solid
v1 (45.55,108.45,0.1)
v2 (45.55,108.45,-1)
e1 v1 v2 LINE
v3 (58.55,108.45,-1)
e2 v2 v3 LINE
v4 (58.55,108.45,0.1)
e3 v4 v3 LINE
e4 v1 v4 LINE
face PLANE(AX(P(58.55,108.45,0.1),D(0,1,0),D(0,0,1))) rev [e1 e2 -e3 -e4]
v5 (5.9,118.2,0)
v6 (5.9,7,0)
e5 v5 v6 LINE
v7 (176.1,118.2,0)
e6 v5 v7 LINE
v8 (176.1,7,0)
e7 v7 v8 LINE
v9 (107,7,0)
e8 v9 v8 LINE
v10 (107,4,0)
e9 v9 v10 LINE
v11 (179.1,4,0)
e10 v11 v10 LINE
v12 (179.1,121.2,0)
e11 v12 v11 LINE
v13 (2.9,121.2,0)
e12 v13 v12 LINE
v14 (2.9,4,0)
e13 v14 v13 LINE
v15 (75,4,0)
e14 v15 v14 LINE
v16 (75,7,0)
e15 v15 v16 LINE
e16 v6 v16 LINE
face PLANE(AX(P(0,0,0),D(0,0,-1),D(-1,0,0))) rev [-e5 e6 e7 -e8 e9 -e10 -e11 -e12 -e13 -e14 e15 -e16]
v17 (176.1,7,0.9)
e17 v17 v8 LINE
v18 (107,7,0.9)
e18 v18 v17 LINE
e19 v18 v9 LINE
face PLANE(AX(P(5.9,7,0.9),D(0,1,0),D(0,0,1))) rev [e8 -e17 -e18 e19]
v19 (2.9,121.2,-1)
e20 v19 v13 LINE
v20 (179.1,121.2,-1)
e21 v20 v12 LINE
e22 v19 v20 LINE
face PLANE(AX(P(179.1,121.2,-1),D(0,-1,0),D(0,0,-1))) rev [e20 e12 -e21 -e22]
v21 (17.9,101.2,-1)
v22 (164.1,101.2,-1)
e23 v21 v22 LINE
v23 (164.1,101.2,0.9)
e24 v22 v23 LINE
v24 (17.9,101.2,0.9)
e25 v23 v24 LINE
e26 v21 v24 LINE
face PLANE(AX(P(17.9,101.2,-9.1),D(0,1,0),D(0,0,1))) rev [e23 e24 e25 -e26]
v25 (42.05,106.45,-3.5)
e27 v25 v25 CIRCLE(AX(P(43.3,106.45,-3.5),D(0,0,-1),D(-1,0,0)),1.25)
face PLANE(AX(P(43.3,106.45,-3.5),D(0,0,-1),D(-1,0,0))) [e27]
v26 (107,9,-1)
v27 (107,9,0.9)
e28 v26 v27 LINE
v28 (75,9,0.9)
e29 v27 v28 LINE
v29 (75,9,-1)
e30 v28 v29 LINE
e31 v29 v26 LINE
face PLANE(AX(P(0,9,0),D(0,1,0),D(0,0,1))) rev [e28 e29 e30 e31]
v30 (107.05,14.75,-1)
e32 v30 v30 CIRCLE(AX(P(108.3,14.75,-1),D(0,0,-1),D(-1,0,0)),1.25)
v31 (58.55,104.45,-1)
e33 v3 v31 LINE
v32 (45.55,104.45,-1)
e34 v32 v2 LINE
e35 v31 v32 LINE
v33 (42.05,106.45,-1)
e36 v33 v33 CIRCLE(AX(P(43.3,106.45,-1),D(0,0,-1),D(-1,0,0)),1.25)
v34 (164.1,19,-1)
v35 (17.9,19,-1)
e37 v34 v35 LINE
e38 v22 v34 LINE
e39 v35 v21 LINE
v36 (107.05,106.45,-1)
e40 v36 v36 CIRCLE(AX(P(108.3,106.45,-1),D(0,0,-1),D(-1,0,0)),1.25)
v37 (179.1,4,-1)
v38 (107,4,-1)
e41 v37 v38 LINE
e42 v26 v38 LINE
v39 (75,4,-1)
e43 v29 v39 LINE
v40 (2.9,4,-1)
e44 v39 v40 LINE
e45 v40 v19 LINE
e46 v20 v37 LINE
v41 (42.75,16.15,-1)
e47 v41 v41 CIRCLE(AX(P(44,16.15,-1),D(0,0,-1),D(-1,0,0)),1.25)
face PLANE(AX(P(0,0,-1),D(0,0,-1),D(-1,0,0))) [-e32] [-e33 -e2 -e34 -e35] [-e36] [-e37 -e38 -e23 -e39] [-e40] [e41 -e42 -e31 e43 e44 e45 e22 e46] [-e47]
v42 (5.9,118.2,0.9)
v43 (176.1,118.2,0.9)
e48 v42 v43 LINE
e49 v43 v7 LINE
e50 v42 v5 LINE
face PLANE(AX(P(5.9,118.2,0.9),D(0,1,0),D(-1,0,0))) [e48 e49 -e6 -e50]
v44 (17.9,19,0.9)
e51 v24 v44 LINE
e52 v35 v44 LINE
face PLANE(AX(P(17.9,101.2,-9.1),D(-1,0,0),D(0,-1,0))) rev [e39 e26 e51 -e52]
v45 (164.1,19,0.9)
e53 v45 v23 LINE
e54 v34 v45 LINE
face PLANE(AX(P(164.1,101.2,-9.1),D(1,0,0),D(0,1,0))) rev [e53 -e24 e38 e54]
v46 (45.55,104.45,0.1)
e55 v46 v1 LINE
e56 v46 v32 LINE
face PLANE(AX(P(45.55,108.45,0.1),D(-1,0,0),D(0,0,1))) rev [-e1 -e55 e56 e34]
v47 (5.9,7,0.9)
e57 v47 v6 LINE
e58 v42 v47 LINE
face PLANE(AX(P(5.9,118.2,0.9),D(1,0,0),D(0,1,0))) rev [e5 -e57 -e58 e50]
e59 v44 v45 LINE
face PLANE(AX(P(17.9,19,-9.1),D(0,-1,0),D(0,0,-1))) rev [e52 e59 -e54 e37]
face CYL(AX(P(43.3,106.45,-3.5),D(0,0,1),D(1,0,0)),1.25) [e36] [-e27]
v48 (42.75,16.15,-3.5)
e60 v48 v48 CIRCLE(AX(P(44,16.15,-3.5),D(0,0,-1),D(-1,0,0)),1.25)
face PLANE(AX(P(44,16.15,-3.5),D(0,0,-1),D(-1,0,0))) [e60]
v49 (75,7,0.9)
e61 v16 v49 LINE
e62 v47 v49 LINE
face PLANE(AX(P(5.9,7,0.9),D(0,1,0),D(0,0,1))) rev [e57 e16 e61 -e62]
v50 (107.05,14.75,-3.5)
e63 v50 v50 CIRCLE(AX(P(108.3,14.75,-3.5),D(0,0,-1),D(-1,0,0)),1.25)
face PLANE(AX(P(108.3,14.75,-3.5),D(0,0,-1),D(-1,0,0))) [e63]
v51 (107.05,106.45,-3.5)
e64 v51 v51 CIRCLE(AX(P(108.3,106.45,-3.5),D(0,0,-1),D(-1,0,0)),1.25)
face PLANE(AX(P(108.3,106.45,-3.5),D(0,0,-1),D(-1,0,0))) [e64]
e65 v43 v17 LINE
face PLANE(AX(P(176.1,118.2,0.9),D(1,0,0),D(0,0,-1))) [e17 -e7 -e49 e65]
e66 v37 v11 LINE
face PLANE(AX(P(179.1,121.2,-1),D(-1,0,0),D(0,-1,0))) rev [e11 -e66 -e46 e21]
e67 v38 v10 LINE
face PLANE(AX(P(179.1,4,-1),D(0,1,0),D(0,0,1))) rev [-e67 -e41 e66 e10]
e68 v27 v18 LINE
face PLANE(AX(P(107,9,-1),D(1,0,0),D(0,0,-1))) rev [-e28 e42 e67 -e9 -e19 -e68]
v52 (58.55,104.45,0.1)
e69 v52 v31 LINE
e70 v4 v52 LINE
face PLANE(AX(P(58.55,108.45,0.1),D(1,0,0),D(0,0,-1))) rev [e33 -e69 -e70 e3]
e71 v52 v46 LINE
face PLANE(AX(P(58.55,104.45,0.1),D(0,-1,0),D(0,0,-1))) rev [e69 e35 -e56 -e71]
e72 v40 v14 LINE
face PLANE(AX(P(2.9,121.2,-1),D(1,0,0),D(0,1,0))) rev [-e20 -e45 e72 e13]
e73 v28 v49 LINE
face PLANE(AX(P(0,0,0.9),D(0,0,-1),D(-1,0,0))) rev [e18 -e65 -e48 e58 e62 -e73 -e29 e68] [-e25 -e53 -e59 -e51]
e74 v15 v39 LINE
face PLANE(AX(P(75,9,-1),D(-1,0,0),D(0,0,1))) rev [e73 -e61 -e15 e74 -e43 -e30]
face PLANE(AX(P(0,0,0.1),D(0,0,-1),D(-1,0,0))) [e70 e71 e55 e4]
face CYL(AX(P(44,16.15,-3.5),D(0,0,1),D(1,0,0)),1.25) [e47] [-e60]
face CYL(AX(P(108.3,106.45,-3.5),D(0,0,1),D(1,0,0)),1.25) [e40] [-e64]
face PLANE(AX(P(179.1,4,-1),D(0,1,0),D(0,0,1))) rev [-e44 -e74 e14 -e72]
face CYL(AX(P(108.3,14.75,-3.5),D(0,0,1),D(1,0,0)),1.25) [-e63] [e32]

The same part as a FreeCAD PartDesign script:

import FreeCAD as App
import Part
import Sketcher

doc = App.newDocument("Part")
body = doc.addObject("PartDesign::Body", "Body")

sketch1 = doc.addObject("Sketcher::SketchObject", "Sketch")
body.addObject(sketch1)
sketch1.AttachmentSupport = (doc.XY_Plane, [""])
sketch1.MapMode = "FlatFace"
sketch1.addGeometry([
    Part.LineSegment(App.Vector(6, 118, 0), App.Vector(6, 7, 0)),
    Part.LineSegment(App.Vector(6, 7, 0), App.Vector(176, 7, 0)),
    Part.LineSegment(App.Vector(176, 7, 0), App.Vector(176, 118, 0)),
    Part.LineSegment(App.Vector(176, 118, 0), App.Vector(6, 118, 0)),
], False)
sketch1.addConstraint([
    Sketcher.Constraint("Coincident", 0, 2, 1, 1),
    Sketcher.Constraint("Coincident", 1, 2, 2, 1),
    Sketcher.Constraint("Coincident", 2, 2, 3, 1),
    Sketcher.Constraint("Coincident", 3, 2, 0, 1),
    Sketcher.Constraint("Vertical", 0),
    Sketcher.Constraint("Horizontal", 1),
    Sketcher.Constraint("Vertical", 2),
    Sketcher.Constraint("Horizontal", 3),
    Sketcher.Constraint("DistanceX", 1, 1, 1, 2, 170.2),
    Sketcher.Constraint("DistanceY", 0, 2, 0, 1, 111.2),
    Sketcher.Constraint("DistanceY", -1, 1, 0, 2, 7.0),
    Sketcher.Constraint("DistanceX", -1, 1, 0, 2, 5.9),
])
pad1 = doc.addObject("PartDesign::Pad", "Pad")
body.addObject(pad1)
pad1.Profile = sketch1
pad1.Length = 0.9

sketch2 = doc.addObject("Sketcher::SketchObject", "Sketch001")
body.addObject(sketch2)
sketch2.AttachmentSupport = (doc.XY_Plane, [""])
sketch2.MapMode = "FlatFace"
sketch2.addGeometry([
    Part.LineSegment(App.Vector(179, 121, 0), App.Vector(179, 4, 0)),
    Part.LineSegment(App.Vector(179, 4, 0), App.Vector(3, 4, 0)),
    Part.LineSegment(App.Vector(3, 4, 0), App.Vector(3, 121, 0)),
    Part.LineSegment(App.Vector(3, 121, 0), App.Vector(179, 121, 0)),
], False)
sketch2.addConstraint([
    Sketcher.Constraint("Coincident", 0, 2, 1, 1),
    Sketcher.Constraint("Coincident", 1, 2, 2, 1),
    Sketcher.Constraint("Coincident", 2, 2, 3, 1),
    Sketcher.Constraint("Coincident", 3, 2, 0, 1),
    Sketcher.Constraint("Vertical", 0),
    Sketcher.Constraint("Horizontal", 1),
    Sketcher.Constraint("Vertical", 2),
    Sketcher.Constraint("Horizontal", 3),
    Sketcher.Constraint("DistanceX", 1, 2, 1, 1, 176.2),
    Sketcher.Constraint("DistanceY", 0, 2, 0, 1, 117.2),
    Sketcher.Constraint("DistanceY", -1, 1, 0, 2, 4.0),
    Sketcher.Constraint("DistanceX", -1, 1, 0, 2, 179.1),
])
pad2 = doc.addObject("PartDesign::Pad", "Pad001")
body.addObject(pad2)
pad2.Profile = sketch2
pad2.Length = 1
pad2.Reversed = True

sketch3 = doc.addObject("Sketcher::SketchObject", "Sketch002")
body.addObject(sketch3)
sketch3.AttachmentSupport = (doc.XZ_Plane, [""])
sketch3.MapMode = "FlatFace"
sketch3.AttachmentOffset = App.Placement(App.Vector(0, 0, -4), App.Rotation())
sketch3.addGeometry([
    Part.LineSegment(App.Vector(75, 0.9, 0), App.Vector(75, -1, 0)),
    Part.LineSegment(App.Vector(75, -1, 0), App.Vector(107, -1, 0)),
    Part.LineSegment(App.Vector(107, -1, 0), App.Vector(107, 0.9, 0)),
    Part.LineSegment(App.Vector(107, 0.9, 0), App.Vector(75, 0.9, 0)),
], False)
sketch3.addConstraint([
    Sketcher.Constraint("Coincident", 0, 2, 1, 1),
    Sketcher.Constraint("Coincident", 1, 2, 2, 1),
    Sketcher.Constraint("Coincident", 2, 2, 3, 1),
    Sketcher.Constraint("Coincident", 3, 2, 0, 1),
    Sketcher.Constraint("Vertical", 0),
    Sketcher.Constraint("Horizontal", 1),
    Sketcher.Constraint("Vertical", 2),
    Sketcher.Constraint("Horizontal", 3),
    Sketcher.Constraint("DistanceX", 1, 1, 1, 2, 32.0),
    Sketcher.Constraint("DistanceY", 0, 2, 0, 1, 1.9),
    Sketcher.Constraint("DistanceX", -1, 1, 0, 2, 75.0),
    Sketcher.Constraint("DistanceY", 0, 2, -1, 1, 1.0),
])
pocket1 = doc.addObject("PartDesign::Pocket", "Pocket")
body.addObject(pocket1)
pocket1.Profile = sketch3
pocket1.Length = 5

sketch4 = doc.addObject("Sketcher::SketchObject", "Sketch003")
body.addObject(sketch4)
sketch4.AttachmentSupport = (doc.XY_Plane, [""])
sketch4.MapMode = "FlatFace"
sketch4.AttachmentOffset = App.Placement(App.Vector(0, 0, -1), App.Rotation())
sketch4.addGeometry([
    Part.Circle(App.Vector(108.3, 14.8, 0), App.Vector(0, 0, 1), 1.2),
    Part.Circle(App.Vector(108.3, 106.5, 0), App.Vector(0, 0, 1), 1.2),
    Part.Circle(App.Vector(43.3, 106.5, 0), App.Vector(0, 0, 1), 1.2),
    Part.Circle(App.Vector(44, 16.1, 0), App.Vector(0, 0, 1), 1.2),
], False)
sketch4.addConstraint([
    Sketcher.Constraint("Equal", 0, 1),
    Sketcher.Constraint("Equal", 1, 2),
    Sketcher.Constraint("Equal", 2, 3),
    Sketcher.Constraint("Horizontal", 1, 3, 2, 3),
    Sketcher.Constraint("Vertical", 0, 3, 1, 3),
    Sketcher.Constraint("Diameter", 0, 2.5),
    Sketcher.Constraint("DistanceX", -1, 1, 3, 3, 44.0),
    Sketcher.Constraint("DistanceX", 2, 3, 1, 3, 65.0),
    Sketcher.Constraint("DistanceX", -1, 1, 0, 3, 108.3),
    Sketcher.Constraint("DistanceY", 0, 3, 1, 3, 91.7),
    Sketcher.Constraint("DistanceY", 0, 3, 3, 3, 1.4),
    Sketcher.Constraint("DistanceY", -1, 1, 0, 3, 14.75),
])
pad3 = doc.addObject("PartDesign::Pad", "Pad002")
body.addObject(pad3)
pad3.Profile = sketch4
pad3.Length = 2.5
pad3.Reversed = True

sketch5 = doc.addObject("Sketcher::SketchObject", "Sketch004")
body.addObject(sketch5)
sketch5.AttachmentSupport = (doc.XY_Plane, [""])
sketch5.MapMode = "FlatFace"
sketch5.AttachmentOffset = App.Placement(App.Vector(0, 0, -1), App.Rotation())
sketch5.addGeometry([
    Part.LineSegment(App.Vector(58.5, 108.5, 0), App.Vector(58.5, 104.5, 0)),
    Part.LineSegment(App.Vector(58.5, 104.5, 0), App.Vector(45.5, 104.5, 0)),
    Part.LineSegment(App.Vector(45.5, 104.5, 0), App.Vector(45.5, 108.5, 0)),
    Part.LineSegment(App.Vector(45.5, 108.5, 0), App.Vector(58.5, 108.5, 0)),
], False)
sketch5.addConstraint([
    Sketcher.Constraint("Coincident", 0, 2, 1, 1),
    Sketcher.Constraint("Coincident", 1, 2, 2, 1),
    Sketcher.Constraint("Coincident", 2, 2, 3, 1),
    Sketcher.Constraint("Coincident", 3, 2, 0, 1),
    Sketcher.Constraint("Vertical", 0),
    Sketcher.Constraint("Horizontal", 1),
    Sketcher.Constraint("Vertical", 2),
    Sketcher.Constraint("Horizontal", 3),
    Sketcher.Constraint("DistanceX", 1, 2, 1, 1, 13.0),
    Sketcher.Constraint("DistanceY", 0, 2, 0, 1, 4.0),
    Sketcher.Constraint("DistanceX", -1, 1, 0, 2, 58.55),
    Sketcher.Constraint("DistanceY", -1, 1, 0, 2, 104.45),
])
pocket2 = doc.addObject("PartDesign::Pocket", "Pocket001")
body.addObject(pocket2)
pocket2.Profile = sketch5
pocket2.Length = 1.1
pocket2.Reversed = True

sketch6 = doc.addObject("Sketcher::SketchObject", "Sketch005")
body.addObject(sketch6)
sketch6.AttachmentSupport = (doc.XY_Plane, [""])
sketch6.MapMode = "FlatFace"
sketch6.AttachmentOffset = App.Placement(App.Vector(0, 0, 0.9), App.Rotation())
sketch6.addGeometry([
    Part.LineSegment(App.Vector(18, 101, 0), App.Vector(18, 19, 0)),
    Part.LineSegment(App.Vector(18, 19, 0), App.Vector(164, 19, 0)),
    Part.LineSegment(App.Vector(164, 19, 0), App.Vector(164, 101, 0)),
    Part.LineSegment(App.Vector(164, 101, 0), App.Vector(18, 101, 0)),
], False)
sketch6.addConstraint([
    Sketcher.Constraint("Coincident", 0, 2, 1, 1),
    Sketcher.Constraint("Coincident", 1, 2, 2, 1),
    Sketcher.Constraint("Coincident", 2, 2, 3, 1),
    Sketcher.Constraint("Coincident", 3, 2, 0, 1),
    Sketcher.Constraint("Vertical", 0),
    Sketcher.Constraint("Horizontal", 1),
    Sketcher.Constraint("Vertical", 2),
    Sketcher.Constraint("Horizontal", 3),
    Sketcher.Constraint("DistanceX", 1, 1, 1, 2, 146.2),
    Sketcher.Constraint("DistanceY", 0, 2, 0, 1, 82.2),
    Sketcher.Constraint("DistanceY", -1, 1, 0, 2, 19.0),
    Sketcher.Constraint("DistanceX", -1, 1, 0, 2, 17.9),
])
pocket3 = doc.addObject("PartDesign::Pocket", "Pocket002")
body.addObject(pocket3)
pocket3.Profile = sketch6
pocket3.Length = 10

doc.recompute()
